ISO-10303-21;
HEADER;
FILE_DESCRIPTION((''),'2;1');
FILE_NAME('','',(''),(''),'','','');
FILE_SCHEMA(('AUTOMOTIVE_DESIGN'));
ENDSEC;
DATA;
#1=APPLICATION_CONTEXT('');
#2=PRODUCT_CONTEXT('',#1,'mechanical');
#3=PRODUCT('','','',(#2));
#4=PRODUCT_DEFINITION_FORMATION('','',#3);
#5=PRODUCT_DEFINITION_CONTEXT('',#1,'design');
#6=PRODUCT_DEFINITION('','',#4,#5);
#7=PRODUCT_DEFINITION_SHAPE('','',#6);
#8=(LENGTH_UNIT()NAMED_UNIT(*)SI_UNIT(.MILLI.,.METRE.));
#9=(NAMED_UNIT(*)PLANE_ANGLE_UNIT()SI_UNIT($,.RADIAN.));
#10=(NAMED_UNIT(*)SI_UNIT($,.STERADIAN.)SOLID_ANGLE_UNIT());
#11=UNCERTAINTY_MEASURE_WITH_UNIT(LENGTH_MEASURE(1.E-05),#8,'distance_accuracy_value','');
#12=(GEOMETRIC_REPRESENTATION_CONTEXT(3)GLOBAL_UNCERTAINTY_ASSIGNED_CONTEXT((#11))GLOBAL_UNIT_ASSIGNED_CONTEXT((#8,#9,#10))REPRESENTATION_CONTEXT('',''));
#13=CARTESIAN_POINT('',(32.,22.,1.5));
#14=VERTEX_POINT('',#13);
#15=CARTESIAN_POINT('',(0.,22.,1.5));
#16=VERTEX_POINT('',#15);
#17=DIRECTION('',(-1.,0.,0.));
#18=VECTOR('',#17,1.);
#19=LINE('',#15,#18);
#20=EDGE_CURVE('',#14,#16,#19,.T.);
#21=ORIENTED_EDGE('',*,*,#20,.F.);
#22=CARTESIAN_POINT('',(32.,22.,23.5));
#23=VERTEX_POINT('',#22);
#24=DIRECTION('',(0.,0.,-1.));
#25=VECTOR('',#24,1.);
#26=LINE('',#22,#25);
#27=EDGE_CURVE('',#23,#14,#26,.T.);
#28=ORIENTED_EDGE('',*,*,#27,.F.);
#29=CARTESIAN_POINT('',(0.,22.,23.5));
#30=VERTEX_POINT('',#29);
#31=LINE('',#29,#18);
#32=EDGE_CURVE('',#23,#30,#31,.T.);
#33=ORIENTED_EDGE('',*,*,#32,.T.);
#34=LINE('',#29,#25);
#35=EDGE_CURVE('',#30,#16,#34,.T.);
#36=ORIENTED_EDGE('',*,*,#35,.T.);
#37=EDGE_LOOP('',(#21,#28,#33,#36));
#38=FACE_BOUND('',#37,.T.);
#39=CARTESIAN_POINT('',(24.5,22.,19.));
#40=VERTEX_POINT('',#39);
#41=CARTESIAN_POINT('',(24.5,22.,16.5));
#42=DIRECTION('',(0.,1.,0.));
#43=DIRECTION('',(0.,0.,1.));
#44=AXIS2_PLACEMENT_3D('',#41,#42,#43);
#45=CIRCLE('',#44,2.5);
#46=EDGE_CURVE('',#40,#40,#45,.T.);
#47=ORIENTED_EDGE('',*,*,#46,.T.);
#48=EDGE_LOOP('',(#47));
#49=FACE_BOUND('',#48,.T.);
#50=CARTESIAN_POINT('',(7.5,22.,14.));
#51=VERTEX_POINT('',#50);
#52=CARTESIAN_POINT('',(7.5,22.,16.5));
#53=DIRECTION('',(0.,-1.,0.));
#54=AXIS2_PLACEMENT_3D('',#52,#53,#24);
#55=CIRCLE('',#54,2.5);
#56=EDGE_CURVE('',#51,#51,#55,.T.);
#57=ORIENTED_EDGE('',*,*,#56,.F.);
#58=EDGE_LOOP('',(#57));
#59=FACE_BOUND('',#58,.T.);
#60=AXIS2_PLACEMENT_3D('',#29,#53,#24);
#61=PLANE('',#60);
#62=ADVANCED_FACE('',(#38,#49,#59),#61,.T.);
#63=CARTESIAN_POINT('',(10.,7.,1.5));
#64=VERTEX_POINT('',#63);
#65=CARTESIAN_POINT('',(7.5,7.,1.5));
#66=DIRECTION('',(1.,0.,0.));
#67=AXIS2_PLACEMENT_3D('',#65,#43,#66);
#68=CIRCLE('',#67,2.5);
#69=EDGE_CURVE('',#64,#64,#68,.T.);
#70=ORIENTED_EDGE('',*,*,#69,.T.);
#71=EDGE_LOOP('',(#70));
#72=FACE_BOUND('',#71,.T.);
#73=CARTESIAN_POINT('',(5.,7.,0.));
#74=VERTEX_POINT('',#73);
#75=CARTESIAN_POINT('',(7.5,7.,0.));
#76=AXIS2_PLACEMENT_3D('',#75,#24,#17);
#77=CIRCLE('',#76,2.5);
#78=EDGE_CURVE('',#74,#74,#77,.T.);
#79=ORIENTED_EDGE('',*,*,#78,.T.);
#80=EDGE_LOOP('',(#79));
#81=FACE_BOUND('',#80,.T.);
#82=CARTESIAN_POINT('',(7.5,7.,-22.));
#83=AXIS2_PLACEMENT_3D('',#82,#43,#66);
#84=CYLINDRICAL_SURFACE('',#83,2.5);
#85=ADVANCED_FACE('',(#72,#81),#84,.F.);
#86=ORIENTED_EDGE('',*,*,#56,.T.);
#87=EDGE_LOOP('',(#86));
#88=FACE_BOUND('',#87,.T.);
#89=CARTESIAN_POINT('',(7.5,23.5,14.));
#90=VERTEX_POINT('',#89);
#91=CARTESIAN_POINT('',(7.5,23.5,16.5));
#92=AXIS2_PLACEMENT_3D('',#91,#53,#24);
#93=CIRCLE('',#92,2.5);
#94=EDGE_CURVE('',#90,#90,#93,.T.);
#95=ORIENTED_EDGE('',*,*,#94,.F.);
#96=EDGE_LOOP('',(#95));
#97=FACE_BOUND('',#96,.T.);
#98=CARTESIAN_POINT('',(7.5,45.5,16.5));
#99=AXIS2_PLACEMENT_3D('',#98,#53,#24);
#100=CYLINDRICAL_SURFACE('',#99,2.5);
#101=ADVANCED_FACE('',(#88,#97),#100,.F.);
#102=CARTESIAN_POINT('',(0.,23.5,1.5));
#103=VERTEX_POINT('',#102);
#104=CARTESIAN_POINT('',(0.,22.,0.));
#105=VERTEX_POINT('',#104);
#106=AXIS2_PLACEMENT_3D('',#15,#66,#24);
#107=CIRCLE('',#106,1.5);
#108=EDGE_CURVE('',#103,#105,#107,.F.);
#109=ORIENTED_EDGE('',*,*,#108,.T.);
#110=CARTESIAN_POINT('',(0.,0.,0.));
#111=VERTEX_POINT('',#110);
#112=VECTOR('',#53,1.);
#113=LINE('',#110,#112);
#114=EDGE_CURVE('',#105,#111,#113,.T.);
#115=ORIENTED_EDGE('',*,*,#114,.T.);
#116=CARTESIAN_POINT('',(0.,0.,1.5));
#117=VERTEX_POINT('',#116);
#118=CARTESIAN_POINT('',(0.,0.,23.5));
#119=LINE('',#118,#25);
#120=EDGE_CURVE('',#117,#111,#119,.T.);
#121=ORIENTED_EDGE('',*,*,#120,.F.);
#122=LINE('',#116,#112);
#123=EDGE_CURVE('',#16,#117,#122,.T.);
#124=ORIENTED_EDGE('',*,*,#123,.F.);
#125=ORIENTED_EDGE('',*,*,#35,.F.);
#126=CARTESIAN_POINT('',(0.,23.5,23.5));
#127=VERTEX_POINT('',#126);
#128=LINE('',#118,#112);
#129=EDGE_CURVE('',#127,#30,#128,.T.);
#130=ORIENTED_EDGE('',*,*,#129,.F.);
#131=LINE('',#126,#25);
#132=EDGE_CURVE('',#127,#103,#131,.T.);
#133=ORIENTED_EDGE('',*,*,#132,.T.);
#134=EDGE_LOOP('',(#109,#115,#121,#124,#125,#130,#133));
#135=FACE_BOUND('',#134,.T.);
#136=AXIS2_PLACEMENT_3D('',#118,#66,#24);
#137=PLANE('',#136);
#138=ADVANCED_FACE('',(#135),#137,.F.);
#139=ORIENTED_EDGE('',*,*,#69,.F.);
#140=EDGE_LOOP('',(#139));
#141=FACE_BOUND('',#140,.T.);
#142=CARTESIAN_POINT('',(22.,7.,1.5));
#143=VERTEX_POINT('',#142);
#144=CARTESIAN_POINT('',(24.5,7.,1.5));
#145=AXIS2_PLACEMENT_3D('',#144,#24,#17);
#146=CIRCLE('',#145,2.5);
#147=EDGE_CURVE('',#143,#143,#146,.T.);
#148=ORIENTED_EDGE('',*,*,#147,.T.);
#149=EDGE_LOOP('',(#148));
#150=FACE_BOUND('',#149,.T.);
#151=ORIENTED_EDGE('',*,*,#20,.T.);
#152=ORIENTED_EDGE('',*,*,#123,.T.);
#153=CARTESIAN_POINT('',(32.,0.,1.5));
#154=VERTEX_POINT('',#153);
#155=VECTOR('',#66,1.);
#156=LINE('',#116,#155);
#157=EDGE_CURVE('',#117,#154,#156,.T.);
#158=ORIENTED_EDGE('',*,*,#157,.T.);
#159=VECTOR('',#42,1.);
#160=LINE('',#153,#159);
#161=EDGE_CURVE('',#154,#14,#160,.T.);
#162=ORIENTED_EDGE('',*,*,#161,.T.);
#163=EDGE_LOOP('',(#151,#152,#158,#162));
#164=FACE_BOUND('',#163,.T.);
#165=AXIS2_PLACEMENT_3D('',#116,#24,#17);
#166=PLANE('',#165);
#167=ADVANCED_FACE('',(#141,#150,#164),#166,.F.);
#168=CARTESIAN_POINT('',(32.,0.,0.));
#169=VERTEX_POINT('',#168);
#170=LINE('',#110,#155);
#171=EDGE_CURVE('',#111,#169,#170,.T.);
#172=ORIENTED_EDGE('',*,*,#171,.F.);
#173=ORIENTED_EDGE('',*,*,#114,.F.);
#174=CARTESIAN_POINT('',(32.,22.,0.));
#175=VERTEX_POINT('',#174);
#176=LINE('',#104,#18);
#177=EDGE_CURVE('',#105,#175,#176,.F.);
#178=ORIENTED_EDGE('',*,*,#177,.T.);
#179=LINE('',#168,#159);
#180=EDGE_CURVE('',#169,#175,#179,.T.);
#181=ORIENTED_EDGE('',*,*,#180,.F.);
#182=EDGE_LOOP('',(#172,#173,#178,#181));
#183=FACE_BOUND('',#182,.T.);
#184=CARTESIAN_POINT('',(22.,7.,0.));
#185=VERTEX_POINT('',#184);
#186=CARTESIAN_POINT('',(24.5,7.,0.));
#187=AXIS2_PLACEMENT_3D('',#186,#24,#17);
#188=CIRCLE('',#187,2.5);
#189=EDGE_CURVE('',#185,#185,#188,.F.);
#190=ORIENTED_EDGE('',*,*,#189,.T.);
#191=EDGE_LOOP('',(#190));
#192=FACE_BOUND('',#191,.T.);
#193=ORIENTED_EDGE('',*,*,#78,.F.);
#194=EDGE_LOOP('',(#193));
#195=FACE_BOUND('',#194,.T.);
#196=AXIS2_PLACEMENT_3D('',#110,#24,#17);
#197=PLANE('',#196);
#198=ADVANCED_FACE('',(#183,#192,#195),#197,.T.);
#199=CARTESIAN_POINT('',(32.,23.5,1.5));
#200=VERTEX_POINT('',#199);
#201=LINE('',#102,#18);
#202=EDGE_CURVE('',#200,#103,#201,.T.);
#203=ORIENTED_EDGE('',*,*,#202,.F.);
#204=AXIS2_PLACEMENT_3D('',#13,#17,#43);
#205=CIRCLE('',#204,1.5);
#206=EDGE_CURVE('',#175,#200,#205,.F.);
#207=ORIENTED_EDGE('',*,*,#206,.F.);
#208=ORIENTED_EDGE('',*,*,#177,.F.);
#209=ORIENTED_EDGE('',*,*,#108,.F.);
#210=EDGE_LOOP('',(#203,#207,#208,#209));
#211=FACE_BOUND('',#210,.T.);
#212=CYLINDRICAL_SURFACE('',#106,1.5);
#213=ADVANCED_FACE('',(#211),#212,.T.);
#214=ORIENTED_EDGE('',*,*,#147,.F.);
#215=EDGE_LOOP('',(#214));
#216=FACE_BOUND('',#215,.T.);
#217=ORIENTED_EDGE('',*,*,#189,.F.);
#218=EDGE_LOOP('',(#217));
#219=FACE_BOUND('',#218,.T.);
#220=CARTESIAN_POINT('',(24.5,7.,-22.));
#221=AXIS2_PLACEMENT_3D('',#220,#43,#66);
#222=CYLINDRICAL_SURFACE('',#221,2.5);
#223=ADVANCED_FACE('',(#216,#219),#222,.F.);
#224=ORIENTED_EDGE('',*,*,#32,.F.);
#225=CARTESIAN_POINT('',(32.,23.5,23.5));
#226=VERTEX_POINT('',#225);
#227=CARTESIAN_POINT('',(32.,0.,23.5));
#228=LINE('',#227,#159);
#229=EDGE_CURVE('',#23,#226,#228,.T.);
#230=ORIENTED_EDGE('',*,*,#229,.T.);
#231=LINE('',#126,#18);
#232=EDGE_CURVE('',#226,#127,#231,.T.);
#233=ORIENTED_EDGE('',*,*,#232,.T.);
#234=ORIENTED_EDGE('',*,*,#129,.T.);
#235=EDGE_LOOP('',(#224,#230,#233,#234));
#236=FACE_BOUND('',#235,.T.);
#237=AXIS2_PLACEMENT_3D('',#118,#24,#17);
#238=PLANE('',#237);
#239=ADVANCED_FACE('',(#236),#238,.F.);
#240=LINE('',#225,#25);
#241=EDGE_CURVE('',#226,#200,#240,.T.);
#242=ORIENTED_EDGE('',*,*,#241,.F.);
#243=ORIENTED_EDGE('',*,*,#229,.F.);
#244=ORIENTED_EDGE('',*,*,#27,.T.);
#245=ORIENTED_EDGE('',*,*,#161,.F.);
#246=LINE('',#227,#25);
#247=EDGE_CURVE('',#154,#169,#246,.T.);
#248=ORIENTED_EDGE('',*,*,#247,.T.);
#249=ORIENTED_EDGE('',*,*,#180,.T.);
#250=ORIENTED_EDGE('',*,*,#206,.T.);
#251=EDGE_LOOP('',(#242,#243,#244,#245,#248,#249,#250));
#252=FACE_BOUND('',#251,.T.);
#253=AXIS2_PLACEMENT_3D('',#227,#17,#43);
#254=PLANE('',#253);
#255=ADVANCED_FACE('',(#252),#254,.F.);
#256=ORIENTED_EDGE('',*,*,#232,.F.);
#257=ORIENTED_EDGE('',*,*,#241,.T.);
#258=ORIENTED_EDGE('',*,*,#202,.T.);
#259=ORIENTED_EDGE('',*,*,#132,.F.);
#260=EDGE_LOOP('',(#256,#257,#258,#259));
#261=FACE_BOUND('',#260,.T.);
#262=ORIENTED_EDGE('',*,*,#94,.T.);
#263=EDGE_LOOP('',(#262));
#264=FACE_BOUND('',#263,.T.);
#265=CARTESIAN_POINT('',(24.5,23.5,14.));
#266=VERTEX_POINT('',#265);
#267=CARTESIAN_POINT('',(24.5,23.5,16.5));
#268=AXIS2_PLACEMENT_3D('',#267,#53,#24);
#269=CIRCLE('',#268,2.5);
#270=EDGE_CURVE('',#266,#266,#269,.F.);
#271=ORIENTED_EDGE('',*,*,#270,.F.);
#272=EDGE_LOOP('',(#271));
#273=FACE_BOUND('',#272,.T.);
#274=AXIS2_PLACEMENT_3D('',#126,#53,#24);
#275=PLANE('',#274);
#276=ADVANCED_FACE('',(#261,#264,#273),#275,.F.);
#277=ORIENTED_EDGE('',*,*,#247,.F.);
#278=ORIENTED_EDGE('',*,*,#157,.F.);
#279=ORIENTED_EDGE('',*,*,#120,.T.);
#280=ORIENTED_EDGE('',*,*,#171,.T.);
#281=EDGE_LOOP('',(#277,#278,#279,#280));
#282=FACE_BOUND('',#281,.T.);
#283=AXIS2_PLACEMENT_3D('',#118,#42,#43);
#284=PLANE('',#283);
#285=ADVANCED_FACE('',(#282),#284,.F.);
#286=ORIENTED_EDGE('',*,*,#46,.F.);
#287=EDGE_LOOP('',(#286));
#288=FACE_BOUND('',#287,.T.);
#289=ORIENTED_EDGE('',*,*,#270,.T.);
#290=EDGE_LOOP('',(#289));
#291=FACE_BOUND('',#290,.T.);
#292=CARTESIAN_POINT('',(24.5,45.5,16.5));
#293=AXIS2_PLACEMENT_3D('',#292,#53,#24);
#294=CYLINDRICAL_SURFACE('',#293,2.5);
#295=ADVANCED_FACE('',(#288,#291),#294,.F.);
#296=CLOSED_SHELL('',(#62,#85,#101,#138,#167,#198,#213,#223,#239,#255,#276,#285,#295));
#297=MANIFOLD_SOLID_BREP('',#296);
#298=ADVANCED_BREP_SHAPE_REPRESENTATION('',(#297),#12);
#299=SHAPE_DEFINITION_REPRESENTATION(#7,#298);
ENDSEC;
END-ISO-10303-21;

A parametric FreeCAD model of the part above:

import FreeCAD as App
import Part
import Sketcher

V = App.Vector
Q = App.Units.Quantity


def edges_at(feature, points):
    """Names of the edges that pass closest to the given points."""
    edges = feature.Shape.Edges
    near = lambda p: min(range(len(edges)), key=lambda i: edges[i].distToShape(Part.Vertex(*p))[0])
    return sorted({f"Edge{near(p) + 1}" for p in points})


def faces_at(feature, points):
    """Names of the faces that lie closest to the given points."""
    faces = feature.Shape.Faces
    near = lambda p: min(range(len(faces)), key=lambda i: faces[i].distToShape(Part.Vertex(*p))[0])
    return sorted({f"Face{near(p) + 1}" for p in points})


def add_polygon(sketch, points):
    """Adds a closed chain of lines whose ends are joined by coincident constraints."""
    first, n = sketch.GeometryCount, len(points)
    for a, b in zip(points, points[1:] + points[:1]):
        sketch.addGeometry(Part.LineSegment(App.Vector(*a, 0), App.Vector(*b, 0)), False)
    for i in range(n):
        sketch.addConstraint(Sketcher.Constraint("Coincident", first + i, 2, first + (i + 1) % n, 1))

doc = App.newDocument("Part")
body = doc.addObject("PartDesign::Body", "Body")

sketch1 = body.newObject("Sketcher::SketchObject", "Sketch")
sketch1.AttachmentSupport = (doc.getObject("XY_Plane"), [""])
sketch1.MapMode = "FlatFace"
add_polygon(sketch1, [(0, 24), (0, 0), (32, 0), (32, 24)])
sketch1.addConstraint([
    Sketcher.Constraint("Vertical", 0),
    Sketcher.Constraint("Horizontal", 1),
    Sketcher.Constraint("Vertical", 2),
    Sketcher.Constraint("Horizontal", 3),
    Sketcher.Constraint("Coincident", 0, 2, -1, 1),
    Sketcher.Constraint("DistanceX", 1, 1, 1, 2, Q("32 mm")),
    Sketcher.Constraint("DistanceY", 0, 2, 0, 1, Q("23.5 mm")),
])
pad1 = body.newObject("PartDesign::Pad", "Pad")
pad1.Profile = sketch1
pad1.Length = 23.5
doc.recompute()

thickness = body.newObject("PartDesign::Thickness", "Thickness")
thickness.Base = (pad1, faces_at(pad1, [
    (16, 11.75, 23.5),
    (32, 11.75, 11.75),
    (16, 0, 11.75),
    (0, 11.75, 11.75),
]))
thickness.Value = 1.5
thickness.Reversed = True
thickness.Join = "Intersection"
doc.recompute()

fillet = body.newObject("PartDesign::Fillet", "Fillet")
fillet.Base = (thickness, edges_at(thickness, [(16, 23.5, 0)]))
fillet.Radius = 1.5

sketch2 = body.newObject("Sketcher::SketchObject", "Sketch001")
sketch2.AttachmentSupport = (doc.getObject("XY_Plane"), [""])
sketch2.MapMode = "FlatFace"
sketch2.AttachmentOffset = App.Placement(V(0, 0, 1.5), App.Rotation())
sketch2.addGeometry([
    Part.Circle(V(7.5, 7, 0), V(0, 0, 1), 2.5),
    Part.Circle(V(24.5, 7, 0), V(0, 0, 1), 2.5),
], False)
sketch2.addConstraint([
    Sketcher.Constraint("Equal", 0, 1),
    Sketcher.Constraint("Horizontal", 0, 3, 1, 3),
    Sketcher.Constraint("Diameter", 0, Q("5 mm")),
    Sketcher.Constraint("DistanceY", -1, 1, 0, 3, Q("7 mm")),
    Sketcher.Constraint("DistanceX", 0, 3, 1, 3, Q("17 mm")),
    Sketcher.Constraint("DistanceX", -1, 1, 0, 3, Q("7.5 mm")),
])
pocket1 = body.newObject("PartDesign::Pocket", "Pocket")
pocket1.Profile = sketch2
pocket1.Length = 23.5

sketch3 = body.newObject("Sketcher::SketchObject", "Sketch002")
sketch3.AttachmentSupport = (doc.getObject("XZ_Plane"), [""])
sketch3.MapMode = "FlatFace"
sketch3.AttachmentOffset = App.Placement(V(0, 0, -22), App.Rotation())
sketch3.addGeometry([
    Part.Circle(V(7.5, 16.5, 0), V(0, 0, 1), 2.5),
    Part.Circle(V(24.5, 16.5, 0), V(0, 0, 1), 2.5),
], False)
sketch3.addConstraint([
    Sketcher.Constraint("Equal", 0, 1),
    Sketcher.Constraint("Horizontal", 0, 3, 1, 3),
    Sketcher.Constraint("Diameter", 0, Q("5 mm")),
    Sketcher.Constraint("DistanceX", 0, 3, 1, 3, Q("17 mm")),
    Sketcher.Constraint("DistanceX", -1, 1, 0, 3, Q("7.5 mm")),
    Sketcher.Constraint("DistanceY", -1, 1, 0, 3, Q("16.5 mm")),
])
pocket2 = body.newObject("PartDesign::Pocket", "Pocket001")
pocket2.Profile = sketch3
pocket2.Length = 23.5

doc.recompute()
